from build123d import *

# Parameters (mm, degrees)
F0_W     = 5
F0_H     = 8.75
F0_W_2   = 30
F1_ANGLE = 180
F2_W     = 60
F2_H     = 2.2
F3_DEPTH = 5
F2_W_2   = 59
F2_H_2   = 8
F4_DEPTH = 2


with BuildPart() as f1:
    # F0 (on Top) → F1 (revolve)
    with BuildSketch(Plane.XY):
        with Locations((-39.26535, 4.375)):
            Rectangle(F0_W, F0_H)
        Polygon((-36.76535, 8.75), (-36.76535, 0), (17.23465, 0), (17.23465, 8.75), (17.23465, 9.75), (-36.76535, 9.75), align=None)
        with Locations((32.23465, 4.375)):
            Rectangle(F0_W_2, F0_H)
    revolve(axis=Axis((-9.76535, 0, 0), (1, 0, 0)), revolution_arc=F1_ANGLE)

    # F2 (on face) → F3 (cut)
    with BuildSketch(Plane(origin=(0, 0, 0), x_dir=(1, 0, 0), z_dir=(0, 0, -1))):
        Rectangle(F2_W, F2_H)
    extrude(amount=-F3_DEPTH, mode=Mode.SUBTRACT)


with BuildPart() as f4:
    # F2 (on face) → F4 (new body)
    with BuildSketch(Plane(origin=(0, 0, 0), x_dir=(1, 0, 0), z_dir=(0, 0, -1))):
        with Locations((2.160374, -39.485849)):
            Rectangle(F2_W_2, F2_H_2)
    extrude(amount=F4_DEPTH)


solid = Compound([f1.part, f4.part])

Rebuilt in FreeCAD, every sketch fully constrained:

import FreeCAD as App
import Part
import Sketcher
Q = App.Units.Quantity

doc = App.newDocument("Part")
body = doc.addObject("PartDesign::Body", "Body")

sketch1 = body.newObject("Sketcher::SketchObject", "Sketch")
sketch1.AttachmentSupport = (doc.getObject("XY_Plane"), [""])
sketch1.MapMode = "FlatFace"
sketch1.addGeometry([
    Part.LineSegment(App.Vector(-41.76535, 8.75, 0), App.Vector(-41.76535, 0, 0)),
    Part.LineSegment(App.Vector(-41.76535, 0, 0), App.Vector(47.23465, 0, 0)),
    Part.LineSegment(App.Vector(47.23465, 0, 0), App.Vector(47.23465, 8.75, 0)),
    Part.LineSegment(App.Vector(47.23465, 8.75, 0), App.Vector(17.23465, 8.75, 0)),
    Part.LineSegment(App.Vector(17.23465, 8.75, 0), App.Vector(17.23465, 9.75, 0)),
    Part.LineSegment(App.Vector(17.23465, 9.75, 0), App.Vector(-36.76535, 9.75, 0)),
    Part.LineSegment(App.Vector(-36.76535, 9.75, 0), App.Vector(-36.76535, 8.75, 0)),
    Part.LineSegment(App.Vector(-36.76535, 8.75, 0), App.Vector(-41.76535, 8.75, 0)),
], False)
sketch1.addConstraint([
    Sketcher.Constraint("Coincident", 0, 2, 1, 1),
    Sketcher.Constraint("Coincident", 1, 2, 2, 1),
    Sketcher.Constraint("Coincident", 2, 2, 3, 1),
    Sketcher.Constraint("Coincident", 3, 2, 4, 1),
    Sketcher.Constraint("Coincident", 4, 2, 5, 1),
    Sketcher.Constraint("Coincident", 5, 2, 6, 1),
    Sketcher.Constraint("Coincident", 6, 2, 7, 1),
    Sketcher.Constraint("Coincident", 7, 2, 0, 1),
    Sketcher.Constraint("Vertical", 0),
    Sketcher.Constraint("Horizontal", 1),
    Sketcher.Constraint("Vertical", 2),
    Sketcher.Constraint("Horizontal", 3),
    Sketcher.Constraint("Vertical", 4),
    Sketcher.Constraint("Horizontal", 5),
    Sketcher.Constraint("Vertical", 6),
    Sketcher.Constraint("Horizontal", 7),
    Sketcher.Constraint("PointOnObject", 0, 2, -1),
    Sketcher.Constraint("Horizontal", 3, 2, 6, 2),
    Sketcher.Constraint("DistanceX", 1, 1, 1, 2, Q("89 mm")),
    Sketcher.Constraint("DistanceX", 3, 2, 3, 1, Q("30 mm")),
    Sketcher.Constraint("DistanceX", 5, 2, 5, 1, Q("54 mm")),
    Sketcher.Constraint("DistanceY", 4, 1, 4, 2, Q("1 mm")),
    Sketcher.Constraint("DistanceY", 0, 2, 0, 1, Q("8.75 mm")),
    Sketcher.Constraint("DistanceX", 0, 2, -1, 1, Q("41.76535 mm")),
])
revolution = body.newObject("PartDesign::Revolution", "Revolution")
revolution.Profile = sketch1
revolution.ReferenceAxis = (sketch1, ["H_Axis"])
revolution.Angle = 180

sketch2 = body.newObject("Sketcher::SketchObject", "Sketch001")
sketch2.AttachmentSupport = (doc.getObject("XY_Plane"), [""])
sketch2.MapMode = "FlatFace"
sketch2.addGeometry([
    Part.LineSegment(App.Vector(-30, -1.1, 0), App.Vector(-30, 1.1, 0)),
    Part.LineSegment(App.Vector(-30, 1.1, 0), App.Vector(30, 1.1, 0)),
    Part.LineSegment(App.Vector(30, 1.1, 0), App.Vector(30, -1.1, 0)),
    Part.LineSegment(App.Vector(30, -1.1, 0), App.Vector(-30, -1.1, 0)),
], False)
sketch2.addConstraint([
    Sketcher.Constraint("Coincident", 0, 2, 1, 1),
    Sketcher.Constraint("Coincident", 1, 2, 2, 1),
    Sketcher.Constraint("Coincident", 2, 2, 3, 1),
    Sketcher.Constraint("Coincident", 3, 2, 0, 1),
    Sketcher.Constraint("Vertical", 0),
    Sketcher.Constraint("Horizontal", 1),
    Sketcher.Constraint("Vertical", 2),
    Sketcher.Constraint("Horizontal", 3),
    Sketcher.Constraint("Symmetric", 0, 2, 2, 2, -1, 1),
    Sketcher.Constraint("DistanceX", 1, 1, 1, 2, Q("60 mm")),
    Sketcher.Constraint("DistanceY", 0, 1, 0, 2, Q("2.2 mm")),
])
pocket1 = body.newObject("PartDesign::Pocket", "Pocket")
pocket1.Profile = sketch2
pocket1.Length = 5
pocket1.Reversed = True
body2 = doc.addObject("PartDesign::Body", "Body001")

sketch3 = body2.newObject("Sketcher::SketchObject", "Sketch002")
sketch3.AttachmentSupport = (doc.getObject("XY_Plane001"), [""])
sketch3.MapMode = "FlatFace"
sketch3.addGeometry([
    Part.LineSegment(App.Vector(-27.339626, 35.485849, 0), App.Vector(-27.339626, 43.485849, 0)),
    Part.LineSegment(App.Vector(-27.339626, 43.485849, 0), App.Vector(31.660374, 43.485849, 0)),
    Part.LineSegment(App.Vector(31.660374, 43.485849, 0), App.Vector(31.660374, 35.485849, 0)),
    Part.LineSegment(App.Vector(31.660374, 35.485849, 0), App.Vector(-27.339626, 35.485849, 0)),
], False)
sketch3.addConstraint([
    Sketcher.Constraint("Coincident", 0, 2, 1, 1),
    Sketcher.Constraint("Coincident", 1, 2, 2, 1),
    Sketcher.Constraint("Coincident", 2, 2, 3, 1),
    Sketcher.Constraint("Coincident", 3, 2, 0, 1),
    Sketcher.Constraint("Vertical", 0),
    Sketcher.Constraint("Horizontal", 1),
    Sketcher.Constraint("Vertical", 2),
    Sketcher.Constraint("Horizontal", 3),
    Sketcher.Constraint("DistanceX", 1, 1, 1, 2, Q("59 mm")),
    Sketcher.Constraint("DistanceY", 0, 1, 0, 2, Q("8 mm")),
    Sketcher.Constraint("DistanceY", -1, 1, 0, 2, Q("43.485849 mm")),
    Sketcher.Constraint("DistanceX", 0, 2, -1, 1, Q("27.339626 mm")),
])
pad1 = body2.newObject("PartDesign::Pad", "Pad")
pad1.Profile = sketch3
pad1.Length = 2
pad1.Reversed = True

doc.recompute()
